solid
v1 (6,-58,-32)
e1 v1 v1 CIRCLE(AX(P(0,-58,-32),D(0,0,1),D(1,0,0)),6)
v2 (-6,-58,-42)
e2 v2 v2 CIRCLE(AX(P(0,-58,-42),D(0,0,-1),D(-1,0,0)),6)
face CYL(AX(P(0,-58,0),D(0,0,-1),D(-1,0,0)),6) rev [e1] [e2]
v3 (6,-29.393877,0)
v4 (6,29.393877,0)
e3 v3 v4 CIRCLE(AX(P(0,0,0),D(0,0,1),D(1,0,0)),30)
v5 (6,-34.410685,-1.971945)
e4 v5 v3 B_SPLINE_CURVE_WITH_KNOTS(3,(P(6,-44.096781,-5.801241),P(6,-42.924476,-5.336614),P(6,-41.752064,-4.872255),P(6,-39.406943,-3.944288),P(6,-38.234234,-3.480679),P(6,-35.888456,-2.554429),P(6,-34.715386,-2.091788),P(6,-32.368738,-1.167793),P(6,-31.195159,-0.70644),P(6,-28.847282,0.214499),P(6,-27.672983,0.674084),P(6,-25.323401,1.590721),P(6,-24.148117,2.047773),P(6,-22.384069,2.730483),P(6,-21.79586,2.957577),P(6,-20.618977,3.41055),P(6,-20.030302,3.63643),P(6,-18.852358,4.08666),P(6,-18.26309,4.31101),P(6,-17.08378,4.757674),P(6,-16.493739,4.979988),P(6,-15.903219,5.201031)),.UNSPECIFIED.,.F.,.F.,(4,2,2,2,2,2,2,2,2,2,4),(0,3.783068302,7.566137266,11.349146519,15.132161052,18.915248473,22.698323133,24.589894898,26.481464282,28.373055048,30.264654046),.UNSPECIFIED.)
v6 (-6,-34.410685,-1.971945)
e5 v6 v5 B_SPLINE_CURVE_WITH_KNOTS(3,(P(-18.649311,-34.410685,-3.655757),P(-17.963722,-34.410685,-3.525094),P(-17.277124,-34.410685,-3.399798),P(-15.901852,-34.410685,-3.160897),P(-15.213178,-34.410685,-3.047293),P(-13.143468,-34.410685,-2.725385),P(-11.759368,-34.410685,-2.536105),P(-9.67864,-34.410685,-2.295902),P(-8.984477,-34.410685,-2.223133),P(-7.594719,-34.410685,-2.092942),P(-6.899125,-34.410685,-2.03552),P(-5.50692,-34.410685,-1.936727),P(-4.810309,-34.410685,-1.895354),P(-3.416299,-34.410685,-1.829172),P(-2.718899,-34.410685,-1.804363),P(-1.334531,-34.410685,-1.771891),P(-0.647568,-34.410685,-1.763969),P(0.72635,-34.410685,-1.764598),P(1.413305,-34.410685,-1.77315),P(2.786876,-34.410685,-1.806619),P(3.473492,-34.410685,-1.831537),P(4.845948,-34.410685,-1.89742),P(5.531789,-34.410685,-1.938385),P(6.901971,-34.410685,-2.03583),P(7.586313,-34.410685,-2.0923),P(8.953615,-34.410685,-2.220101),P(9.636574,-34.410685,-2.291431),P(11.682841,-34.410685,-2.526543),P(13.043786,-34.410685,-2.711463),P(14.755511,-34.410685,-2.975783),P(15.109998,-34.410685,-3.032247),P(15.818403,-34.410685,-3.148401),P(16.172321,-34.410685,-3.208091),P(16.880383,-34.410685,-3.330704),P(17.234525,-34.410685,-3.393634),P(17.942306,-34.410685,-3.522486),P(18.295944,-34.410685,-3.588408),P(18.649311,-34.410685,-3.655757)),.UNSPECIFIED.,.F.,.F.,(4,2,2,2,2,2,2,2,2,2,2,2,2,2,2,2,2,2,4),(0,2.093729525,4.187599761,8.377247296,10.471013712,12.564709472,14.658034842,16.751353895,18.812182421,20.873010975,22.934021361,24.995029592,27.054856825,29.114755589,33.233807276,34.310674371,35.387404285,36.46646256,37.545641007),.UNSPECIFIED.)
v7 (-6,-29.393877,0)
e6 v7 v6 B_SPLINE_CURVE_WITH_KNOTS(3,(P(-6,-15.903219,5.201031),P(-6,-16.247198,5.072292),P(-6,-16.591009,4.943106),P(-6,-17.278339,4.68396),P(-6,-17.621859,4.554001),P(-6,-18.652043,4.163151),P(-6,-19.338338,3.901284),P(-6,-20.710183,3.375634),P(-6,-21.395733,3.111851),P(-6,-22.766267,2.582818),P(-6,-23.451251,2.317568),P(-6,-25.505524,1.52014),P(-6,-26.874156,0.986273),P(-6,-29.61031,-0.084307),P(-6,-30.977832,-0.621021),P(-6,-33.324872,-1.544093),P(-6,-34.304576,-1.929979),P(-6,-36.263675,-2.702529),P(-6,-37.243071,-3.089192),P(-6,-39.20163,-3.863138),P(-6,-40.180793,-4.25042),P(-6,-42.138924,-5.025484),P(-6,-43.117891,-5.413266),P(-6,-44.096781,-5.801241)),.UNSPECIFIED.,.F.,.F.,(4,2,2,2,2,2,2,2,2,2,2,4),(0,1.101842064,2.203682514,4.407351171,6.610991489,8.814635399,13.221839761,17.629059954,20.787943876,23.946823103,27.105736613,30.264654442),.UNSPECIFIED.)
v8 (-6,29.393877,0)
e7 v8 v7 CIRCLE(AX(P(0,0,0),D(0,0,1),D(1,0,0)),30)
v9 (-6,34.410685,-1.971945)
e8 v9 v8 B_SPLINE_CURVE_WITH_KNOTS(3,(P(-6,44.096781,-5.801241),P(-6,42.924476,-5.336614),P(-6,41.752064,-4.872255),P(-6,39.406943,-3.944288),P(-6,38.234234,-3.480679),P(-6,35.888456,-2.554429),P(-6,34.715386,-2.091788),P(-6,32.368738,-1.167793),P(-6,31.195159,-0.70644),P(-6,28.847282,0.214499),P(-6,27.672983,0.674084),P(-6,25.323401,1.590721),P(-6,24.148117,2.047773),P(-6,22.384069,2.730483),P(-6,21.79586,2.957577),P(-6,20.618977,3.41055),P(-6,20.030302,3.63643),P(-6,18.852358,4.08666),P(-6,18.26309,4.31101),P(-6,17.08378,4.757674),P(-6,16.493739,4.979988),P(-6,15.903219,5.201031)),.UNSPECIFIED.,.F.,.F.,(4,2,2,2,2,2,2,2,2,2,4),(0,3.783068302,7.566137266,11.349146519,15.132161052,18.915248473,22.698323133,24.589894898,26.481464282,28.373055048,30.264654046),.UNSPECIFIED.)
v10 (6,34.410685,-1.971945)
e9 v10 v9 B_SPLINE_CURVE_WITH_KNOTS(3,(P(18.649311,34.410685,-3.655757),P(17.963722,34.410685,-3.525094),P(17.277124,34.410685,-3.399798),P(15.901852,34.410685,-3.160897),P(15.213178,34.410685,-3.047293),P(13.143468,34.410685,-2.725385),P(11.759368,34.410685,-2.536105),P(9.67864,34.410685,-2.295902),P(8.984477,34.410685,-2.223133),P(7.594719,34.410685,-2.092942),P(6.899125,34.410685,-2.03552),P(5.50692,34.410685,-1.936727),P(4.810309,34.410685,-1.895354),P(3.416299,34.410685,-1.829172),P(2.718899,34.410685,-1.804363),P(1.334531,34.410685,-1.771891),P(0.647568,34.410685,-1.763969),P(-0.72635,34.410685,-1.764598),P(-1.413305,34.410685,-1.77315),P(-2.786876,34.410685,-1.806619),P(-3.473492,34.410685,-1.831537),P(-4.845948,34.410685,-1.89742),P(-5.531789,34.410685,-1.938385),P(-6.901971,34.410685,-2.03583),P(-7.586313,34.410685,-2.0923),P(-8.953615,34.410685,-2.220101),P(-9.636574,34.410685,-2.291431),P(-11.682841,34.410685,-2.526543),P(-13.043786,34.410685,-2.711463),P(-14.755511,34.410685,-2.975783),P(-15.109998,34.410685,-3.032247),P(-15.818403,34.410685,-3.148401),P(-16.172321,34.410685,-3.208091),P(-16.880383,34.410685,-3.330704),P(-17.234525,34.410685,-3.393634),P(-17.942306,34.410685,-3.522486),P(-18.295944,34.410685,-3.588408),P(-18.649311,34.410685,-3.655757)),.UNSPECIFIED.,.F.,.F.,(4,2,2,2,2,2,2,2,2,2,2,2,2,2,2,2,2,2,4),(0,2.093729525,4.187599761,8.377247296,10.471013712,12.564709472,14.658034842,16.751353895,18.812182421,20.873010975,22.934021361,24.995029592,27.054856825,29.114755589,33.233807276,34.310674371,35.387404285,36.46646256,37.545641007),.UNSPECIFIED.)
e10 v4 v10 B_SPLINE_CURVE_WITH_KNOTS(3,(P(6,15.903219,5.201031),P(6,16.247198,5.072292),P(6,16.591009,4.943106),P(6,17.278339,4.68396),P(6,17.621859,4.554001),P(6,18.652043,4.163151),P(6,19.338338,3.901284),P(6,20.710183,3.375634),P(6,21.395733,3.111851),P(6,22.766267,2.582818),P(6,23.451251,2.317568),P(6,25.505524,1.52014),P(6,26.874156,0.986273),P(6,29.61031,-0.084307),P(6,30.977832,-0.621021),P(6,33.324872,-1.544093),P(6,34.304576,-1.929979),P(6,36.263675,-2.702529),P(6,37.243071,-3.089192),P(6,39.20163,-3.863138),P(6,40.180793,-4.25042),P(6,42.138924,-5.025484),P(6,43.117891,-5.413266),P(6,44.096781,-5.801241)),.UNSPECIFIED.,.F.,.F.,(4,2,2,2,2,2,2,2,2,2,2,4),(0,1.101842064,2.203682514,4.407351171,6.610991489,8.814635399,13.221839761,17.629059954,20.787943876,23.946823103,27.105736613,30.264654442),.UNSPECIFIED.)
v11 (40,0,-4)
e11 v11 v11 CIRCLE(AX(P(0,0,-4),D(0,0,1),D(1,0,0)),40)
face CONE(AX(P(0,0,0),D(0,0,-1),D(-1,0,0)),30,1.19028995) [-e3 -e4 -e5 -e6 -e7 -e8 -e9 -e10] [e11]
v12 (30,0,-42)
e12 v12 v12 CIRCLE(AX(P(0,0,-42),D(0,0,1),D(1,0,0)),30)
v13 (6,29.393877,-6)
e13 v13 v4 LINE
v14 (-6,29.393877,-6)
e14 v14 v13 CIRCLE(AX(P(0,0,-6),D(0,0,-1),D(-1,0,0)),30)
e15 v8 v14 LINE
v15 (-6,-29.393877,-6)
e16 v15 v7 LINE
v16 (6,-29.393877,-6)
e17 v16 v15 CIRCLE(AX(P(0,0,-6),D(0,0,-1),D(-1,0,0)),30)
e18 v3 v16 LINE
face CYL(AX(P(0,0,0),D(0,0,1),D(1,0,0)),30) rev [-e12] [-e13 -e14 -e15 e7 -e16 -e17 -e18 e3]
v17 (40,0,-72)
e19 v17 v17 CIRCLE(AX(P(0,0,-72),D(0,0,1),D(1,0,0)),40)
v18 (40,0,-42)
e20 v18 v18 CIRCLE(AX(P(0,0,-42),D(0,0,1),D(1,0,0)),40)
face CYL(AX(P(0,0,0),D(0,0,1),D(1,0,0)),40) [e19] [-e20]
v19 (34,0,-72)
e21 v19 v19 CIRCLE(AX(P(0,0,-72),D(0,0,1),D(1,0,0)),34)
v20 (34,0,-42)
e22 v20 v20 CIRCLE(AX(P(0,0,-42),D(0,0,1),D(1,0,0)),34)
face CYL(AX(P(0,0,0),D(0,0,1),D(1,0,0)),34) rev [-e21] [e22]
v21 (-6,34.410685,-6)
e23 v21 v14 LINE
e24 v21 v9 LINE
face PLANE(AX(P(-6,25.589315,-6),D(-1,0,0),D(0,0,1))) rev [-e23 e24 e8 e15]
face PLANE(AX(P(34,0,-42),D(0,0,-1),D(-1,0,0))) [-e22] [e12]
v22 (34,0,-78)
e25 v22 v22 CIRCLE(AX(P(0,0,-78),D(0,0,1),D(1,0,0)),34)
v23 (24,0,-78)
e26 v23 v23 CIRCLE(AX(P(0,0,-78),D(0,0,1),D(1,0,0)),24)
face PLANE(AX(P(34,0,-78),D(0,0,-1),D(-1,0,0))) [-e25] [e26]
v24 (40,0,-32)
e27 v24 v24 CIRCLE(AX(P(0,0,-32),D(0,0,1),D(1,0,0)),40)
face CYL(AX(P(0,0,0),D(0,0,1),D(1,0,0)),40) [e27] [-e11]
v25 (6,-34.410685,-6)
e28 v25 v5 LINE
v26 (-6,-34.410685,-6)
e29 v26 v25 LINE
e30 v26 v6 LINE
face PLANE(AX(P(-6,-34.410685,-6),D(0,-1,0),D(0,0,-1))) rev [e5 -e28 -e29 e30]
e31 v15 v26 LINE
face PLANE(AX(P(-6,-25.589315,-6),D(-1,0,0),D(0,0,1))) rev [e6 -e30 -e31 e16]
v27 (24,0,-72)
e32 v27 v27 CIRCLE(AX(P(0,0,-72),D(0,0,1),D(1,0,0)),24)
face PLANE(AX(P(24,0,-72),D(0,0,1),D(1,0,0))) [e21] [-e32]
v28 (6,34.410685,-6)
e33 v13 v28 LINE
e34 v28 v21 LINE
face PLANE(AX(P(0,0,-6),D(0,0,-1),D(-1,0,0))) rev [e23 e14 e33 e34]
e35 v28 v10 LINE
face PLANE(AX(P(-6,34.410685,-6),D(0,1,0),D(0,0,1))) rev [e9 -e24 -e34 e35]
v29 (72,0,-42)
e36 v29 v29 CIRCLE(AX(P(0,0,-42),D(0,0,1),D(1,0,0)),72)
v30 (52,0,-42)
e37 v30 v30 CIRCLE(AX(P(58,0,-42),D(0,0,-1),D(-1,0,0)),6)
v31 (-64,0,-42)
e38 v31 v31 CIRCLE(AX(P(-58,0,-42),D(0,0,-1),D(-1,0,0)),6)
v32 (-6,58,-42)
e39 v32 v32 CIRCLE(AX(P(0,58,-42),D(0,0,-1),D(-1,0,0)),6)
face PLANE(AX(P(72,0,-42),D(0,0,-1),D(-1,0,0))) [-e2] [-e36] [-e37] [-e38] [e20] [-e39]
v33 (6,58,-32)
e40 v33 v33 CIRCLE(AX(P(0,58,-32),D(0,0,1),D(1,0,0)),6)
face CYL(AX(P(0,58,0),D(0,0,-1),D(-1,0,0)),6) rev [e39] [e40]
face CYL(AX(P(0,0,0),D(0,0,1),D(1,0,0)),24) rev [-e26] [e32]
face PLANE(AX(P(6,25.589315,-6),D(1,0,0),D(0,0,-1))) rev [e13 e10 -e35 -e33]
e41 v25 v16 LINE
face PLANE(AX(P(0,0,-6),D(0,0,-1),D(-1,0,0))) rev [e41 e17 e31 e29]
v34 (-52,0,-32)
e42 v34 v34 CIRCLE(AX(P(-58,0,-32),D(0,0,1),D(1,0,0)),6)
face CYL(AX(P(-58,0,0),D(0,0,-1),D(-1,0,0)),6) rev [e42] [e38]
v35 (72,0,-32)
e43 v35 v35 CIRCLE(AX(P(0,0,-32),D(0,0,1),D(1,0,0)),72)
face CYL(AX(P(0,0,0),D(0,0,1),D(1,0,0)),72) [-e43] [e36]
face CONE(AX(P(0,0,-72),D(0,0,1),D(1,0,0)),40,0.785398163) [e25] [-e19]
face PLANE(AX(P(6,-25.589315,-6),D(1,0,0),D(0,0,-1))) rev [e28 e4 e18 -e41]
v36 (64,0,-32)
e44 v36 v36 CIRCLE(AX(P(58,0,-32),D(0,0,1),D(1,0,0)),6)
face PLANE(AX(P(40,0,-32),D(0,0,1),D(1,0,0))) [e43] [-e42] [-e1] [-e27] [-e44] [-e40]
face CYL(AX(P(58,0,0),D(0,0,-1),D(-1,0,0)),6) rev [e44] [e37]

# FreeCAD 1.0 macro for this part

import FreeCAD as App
import Part
import Sketcher
Q = App.Units.Quantity


def add_polygon(sketch, points):
    """Adds a closed chain of lines whose ends are joined by coincident constraints."""
    first, n = sketch.GeometryCount, len(points)
    for a, b in zip(points, points[1:] + points[:1]):
        sketch.addGeometry(Part.LineSegment(App.Vector(*a, 0), App.Vector(*b, 0)), False)
    for i in range(n):
        sketch.addConstraint(Sketcher.Constraint("Coincident", first + i, 2, first + (i + 1) % n, 1))

doc = App.newDocument("Part")
body = doc.addObject("PartDesign::Body", "Body")

sketch1 = doc.addObject("Sketcher::SketchObject", "Sketch")
body.addObject(sketch1)
sketch1.AttachmentSupport = (doc.XZ_Plane, [""])
sketch1.MapMode = "FlatFace"
add_polygon(sketch1, [(24, -78), (24, -72), (34, -72), (34, -42), (30, -42), (30, 0), (40, -4), (40, -32), (72, -32), (72, -42), (40, -42), (40, -72), (34, -78)])
sketch1.addConstraint([
    Sketcher.Constraint("Vertical", 0),
    Sketcher.Constraint("Horizontal", 1),
    Sketcher.Constraint("Vertical", 2),
    Sketcher.Constraint("Horizontal", 3),
    Sketcher.Constraint("Vertical", 4),
    Sketcher.Constraint("Vertical", 6),
    Sketcher.Constraint("Horizontal", 7),
    Sketcher.Constraint("Vertical", 8),
    Sketcher.Constraint("Horizontal", 9),
    Sketcher.Constraint("Vertical", 10),
    Sketcher.Constraint("Horizontal", 12),
    Sketcher.Constraint("PointOnObject", 4, 2, -1),
    Sketcher.Constraint("Horizontal", 3, 2, 8, 2),
    Sketcher.Constraint("Horizontal", 1, 2, 10, 2),
    Sketcher.Constraint("Vertical", 6, 2, 9, 2),
    Sketcher.Constraint("Vertical", 2, 2, 11, 2),
    Sketcher.Constraint("Equal", 12, 8),
    Sketcher.Constraint("DistanceX", 1, 1, 1, 2, Q("10 mm")),
    Sketcher.Constraint("DistanceX", 3, 2, 3, 1, Q("4 mm")),
    Sketcher.Constraint("DistanceX", 7, 1, 7, 2, Q("32 mm")),
    Sketcher.Constraint("DistanceY", 0, 1, 0, 2, Q("6 mm")),
    Sketcher.Constraint("DistanceY", 2, 1, 2, 2, Q("30 mm")),
    Sketcher.Constraint("DistanceY", 4, 1, 4, 2, Q("42 mm")),
    Sketcher.Constraint("DistanceY", 6, 2, 6, 1, Q("28 mm")),
    Sketcher.Constraint("Angle", 11, Q("-135 deg")),
    Sketcher.Constraint("DistanceX", -1, 1, 0, 2, Q("24 mm")),
])
revolution = doc.addObject("PartDesign::Revolution", "Revolution")
body.addObject(revolution)
revolution.Profile = sketch1
revolution.ReferenceAxis = (sketch1, ["V_Axis"])
revolution.Angle = 360

sketch2 = doc.addObject("Sketcher::SketchObject", "Sketch001")
body.addObject(sketch2)
sketch2.AttachmentSupport = (doc.XY_Plane, [""])
sketch2.MapMode = "FlatFace"
sketch2.AttachmentOffset = App.Placement(App.Vector(0, 0, -42), App.Rotation())
sketch2.addGeometry([
    Part.Circle(App.Vector(0, 58, 0), App.Vector(0, 0, 1), 6),
    Part.Circle(App.Vector(-58, 0, 0), App.Vector(0, 0, 1), 6),
    Part.Circle(App.Vector(0, -58, 0), App.Vector(0, 0, 1), 6),
    Part.Circle(App.Vector(58, 0, 0), App.Vector(0, 0, 1), 6),
], False)
sketch2.addConstraint([
    Sketcher.Constraint("Equal", 0, 1),
    Sketcher.Constraint("Equal", 1, 2),
    Sketcher.Constraint("Equal", 2, 3),
    Sketcher.Constraint("Symmetric", 0, 3, 2, 3, -1, 1),
    Sketcher.Constraint("Symmetric", 1, 3, 3, 3, -1, 1),
    Sketcher.Constraint("PointOnObject", 0, 3, -2),
    Sketcher.Constraint("PointOnObject", 1, 3, -1),
    Sketcher.Constraint("Diameter", 0, Q("12 mm")),
    Sketcher.Constraint("DistanceY", -1, 1, 0, 3, Q("58 mm")),
    Sketcher.Constraint("DistanceX", 1, 3, -1, 1, Q("58 mm")),
])
pocket1 = doc.addObject("PartDesign::Pocket", "Pocket")
body.addObject(pocket1)
pocket1.Profile = sketch2
pocket1.Type = "ThroughAll"
pocket1.Midplane = True

sketch3 = doc.addObject("Sketcher::SketchObject", "Sketch002")
body.addObject(sketch3)
sketch3.AttachmentSupport = (doc.XY_Plane, [""])
sketch3.MapMode = "FlatFace"
add_polygon(sketch3, [(-6, 34), (-6, 26), (6, 26), (6, 34)])
add_polygon(sketch3, [(-6, -26), (-6, -34), (6, -34), (6, -26)])
sketch3.addConstraint([
    Sketcher.Constraint("Vertical", 0),
    Sketcher.Constraint("Horizontal", 1),
    Sketcher.Constraint("Vertical", 2),
    Sketcher.Constraint("Horizontal", 3),
    Sketcher.Constraint("Vertical", 4),
    Sketcher.Constraint("Horizontal", 5),
    Sketcher.Constraint("Vertical", 6),
    Sketcher.Constraint("Horizontal", 7),
    Sketcher.Constraint("Symmetric", 2, 2, 4, 2, -1, 1),
    Sketcher.Constraint("Symmetric", 0, 2, 6, 2, -1, 1),
    Sketcher.Constraint("Vertical", 3, 2, 4, 2),
    Sketcher.Constraint("DistanceX", 1, 1, 1, 2, Q("12 mm")),
    Sketcher.Constraint("DistanceY", 4, 2, 0, 2, Q("60 mm")),
    Sketcher.Constraint("DistanceY", 0, 2, 0, 1, Q("8.821371 mm")),
])
pocket2 = doc.addObject("PartDesign::Pocket", "Pocket001")
body.addObject(pocket2)
pocket2.Profile = sketch3
pocket2.Length = 6

doc.recompute()
